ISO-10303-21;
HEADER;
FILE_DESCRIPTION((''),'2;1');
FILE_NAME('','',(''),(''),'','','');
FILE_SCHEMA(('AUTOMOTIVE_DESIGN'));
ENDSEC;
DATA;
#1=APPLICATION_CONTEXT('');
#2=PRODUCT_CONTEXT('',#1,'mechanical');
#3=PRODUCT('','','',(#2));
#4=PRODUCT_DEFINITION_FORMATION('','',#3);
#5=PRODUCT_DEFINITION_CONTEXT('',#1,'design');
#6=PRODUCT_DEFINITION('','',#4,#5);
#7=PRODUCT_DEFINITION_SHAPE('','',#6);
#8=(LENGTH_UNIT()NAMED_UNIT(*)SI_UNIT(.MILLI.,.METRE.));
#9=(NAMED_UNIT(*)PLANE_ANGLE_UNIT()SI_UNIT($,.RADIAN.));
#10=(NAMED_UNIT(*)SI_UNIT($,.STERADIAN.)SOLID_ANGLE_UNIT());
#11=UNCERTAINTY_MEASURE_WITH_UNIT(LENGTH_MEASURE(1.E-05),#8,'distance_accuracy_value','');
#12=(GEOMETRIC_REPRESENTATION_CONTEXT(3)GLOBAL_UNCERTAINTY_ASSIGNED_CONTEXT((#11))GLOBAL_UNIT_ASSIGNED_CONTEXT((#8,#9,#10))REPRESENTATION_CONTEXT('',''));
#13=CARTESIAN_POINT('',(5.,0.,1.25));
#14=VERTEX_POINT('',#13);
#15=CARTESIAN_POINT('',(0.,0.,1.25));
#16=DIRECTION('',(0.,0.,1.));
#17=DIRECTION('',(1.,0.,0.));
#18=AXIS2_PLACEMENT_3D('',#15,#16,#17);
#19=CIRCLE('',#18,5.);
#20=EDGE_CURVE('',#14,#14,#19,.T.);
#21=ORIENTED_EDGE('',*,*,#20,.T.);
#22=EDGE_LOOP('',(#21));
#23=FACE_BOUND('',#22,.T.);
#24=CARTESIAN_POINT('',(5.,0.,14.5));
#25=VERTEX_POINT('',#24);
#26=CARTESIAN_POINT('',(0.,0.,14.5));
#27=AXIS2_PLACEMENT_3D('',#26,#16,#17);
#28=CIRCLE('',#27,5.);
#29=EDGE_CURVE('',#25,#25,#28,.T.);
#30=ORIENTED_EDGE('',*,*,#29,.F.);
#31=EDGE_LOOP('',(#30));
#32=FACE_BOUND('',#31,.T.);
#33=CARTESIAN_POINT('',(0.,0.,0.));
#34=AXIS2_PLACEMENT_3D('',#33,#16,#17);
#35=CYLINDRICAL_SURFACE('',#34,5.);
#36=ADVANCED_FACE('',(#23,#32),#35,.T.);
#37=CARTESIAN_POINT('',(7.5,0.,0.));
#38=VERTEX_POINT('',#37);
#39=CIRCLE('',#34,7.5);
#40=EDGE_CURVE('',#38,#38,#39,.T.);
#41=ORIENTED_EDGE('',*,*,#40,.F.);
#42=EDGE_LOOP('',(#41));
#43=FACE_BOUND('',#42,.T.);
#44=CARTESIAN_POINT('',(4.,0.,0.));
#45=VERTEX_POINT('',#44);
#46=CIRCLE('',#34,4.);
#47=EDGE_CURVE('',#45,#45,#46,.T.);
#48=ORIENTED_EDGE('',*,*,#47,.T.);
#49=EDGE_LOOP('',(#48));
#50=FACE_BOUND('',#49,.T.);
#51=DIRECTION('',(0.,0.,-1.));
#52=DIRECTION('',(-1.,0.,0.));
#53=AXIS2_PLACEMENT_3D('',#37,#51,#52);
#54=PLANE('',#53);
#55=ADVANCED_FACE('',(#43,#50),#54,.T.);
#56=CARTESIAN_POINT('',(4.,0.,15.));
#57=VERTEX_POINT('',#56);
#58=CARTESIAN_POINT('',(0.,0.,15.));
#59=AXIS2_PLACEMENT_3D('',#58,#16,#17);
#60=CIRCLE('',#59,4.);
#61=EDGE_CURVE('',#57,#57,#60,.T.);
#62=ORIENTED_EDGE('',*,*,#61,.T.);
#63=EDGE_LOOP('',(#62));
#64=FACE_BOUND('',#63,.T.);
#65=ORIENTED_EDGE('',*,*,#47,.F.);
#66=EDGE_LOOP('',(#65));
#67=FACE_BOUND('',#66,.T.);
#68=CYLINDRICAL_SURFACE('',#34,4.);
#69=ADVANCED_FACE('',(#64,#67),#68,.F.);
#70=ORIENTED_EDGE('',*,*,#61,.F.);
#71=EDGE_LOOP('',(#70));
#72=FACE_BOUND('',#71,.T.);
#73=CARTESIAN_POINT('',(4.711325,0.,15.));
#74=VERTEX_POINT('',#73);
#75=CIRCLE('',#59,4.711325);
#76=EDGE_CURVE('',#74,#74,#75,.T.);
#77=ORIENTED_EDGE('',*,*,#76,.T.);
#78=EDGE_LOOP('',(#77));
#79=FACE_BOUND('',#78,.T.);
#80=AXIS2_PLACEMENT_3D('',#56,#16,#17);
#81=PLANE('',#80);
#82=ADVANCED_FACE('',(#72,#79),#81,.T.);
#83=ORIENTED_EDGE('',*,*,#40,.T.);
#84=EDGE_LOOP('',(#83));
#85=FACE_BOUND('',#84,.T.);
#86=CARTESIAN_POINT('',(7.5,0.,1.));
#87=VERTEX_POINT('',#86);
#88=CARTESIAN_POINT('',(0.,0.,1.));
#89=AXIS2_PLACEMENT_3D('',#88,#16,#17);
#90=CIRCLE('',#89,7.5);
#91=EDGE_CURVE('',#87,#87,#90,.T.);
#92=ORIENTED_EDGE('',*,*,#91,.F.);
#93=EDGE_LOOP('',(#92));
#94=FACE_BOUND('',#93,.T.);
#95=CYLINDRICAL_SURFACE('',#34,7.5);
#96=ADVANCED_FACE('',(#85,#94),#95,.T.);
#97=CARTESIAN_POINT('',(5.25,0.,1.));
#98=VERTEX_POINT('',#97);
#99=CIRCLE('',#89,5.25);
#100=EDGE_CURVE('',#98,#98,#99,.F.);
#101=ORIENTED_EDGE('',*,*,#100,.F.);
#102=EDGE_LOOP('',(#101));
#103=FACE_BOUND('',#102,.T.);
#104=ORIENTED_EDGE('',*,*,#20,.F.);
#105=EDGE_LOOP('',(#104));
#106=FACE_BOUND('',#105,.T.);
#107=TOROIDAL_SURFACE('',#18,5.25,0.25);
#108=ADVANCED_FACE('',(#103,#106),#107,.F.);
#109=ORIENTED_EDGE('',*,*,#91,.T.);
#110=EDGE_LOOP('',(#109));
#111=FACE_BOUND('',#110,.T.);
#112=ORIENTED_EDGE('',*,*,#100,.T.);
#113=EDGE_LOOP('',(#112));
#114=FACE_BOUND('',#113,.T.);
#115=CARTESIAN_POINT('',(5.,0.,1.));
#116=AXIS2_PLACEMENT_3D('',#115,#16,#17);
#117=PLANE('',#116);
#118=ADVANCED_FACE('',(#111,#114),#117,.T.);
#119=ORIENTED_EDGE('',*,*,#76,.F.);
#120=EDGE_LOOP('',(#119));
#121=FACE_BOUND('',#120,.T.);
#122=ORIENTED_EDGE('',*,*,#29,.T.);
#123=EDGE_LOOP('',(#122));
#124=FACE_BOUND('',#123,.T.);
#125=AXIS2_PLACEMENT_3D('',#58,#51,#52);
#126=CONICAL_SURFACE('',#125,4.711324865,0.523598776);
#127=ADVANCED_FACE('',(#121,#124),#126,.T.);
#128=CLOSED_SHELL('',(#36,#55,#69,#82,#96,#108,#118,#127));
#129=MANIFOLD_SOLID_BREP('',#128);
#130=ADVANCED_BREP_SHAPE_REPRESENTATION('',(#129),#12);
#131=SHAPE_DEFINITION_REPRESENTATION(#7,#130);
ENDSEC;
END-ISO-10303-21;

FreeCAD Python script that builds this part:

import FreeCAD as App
import Part
import Sketcher

V = App.Vector
Q = App.Units.Quantity


def edges_at(feature, points):
    """Names of the edges that pass closest to the given points."""
    edges = feature.Shape.Edges
    near = lambda p: min(range(len(edges)), key=lambda i: edges[i].distToShape(Part.Vertex(*p))[0])
    return sorted({f"Edge{near(p) + 1}" for p in points})


def add_polygon(sketch, points):
    """Adds a closed chain of lines whose ends are joined by coincident constraints."""
    first, n = sketch.GeometryCount, len(points)
    for a, b in zip(points, points[1:] + points[:1]):
        sketch.addGeometry(Part.LineSegment(App.Vector(*a, 0), App.Vector(*b, 0)), False)
    for i in range(n):
        sketch.addConstraint(Sketcher.Constraint("Coincident", first + i, 2, first + (i + 1) % n, 1))

doc = App.newDocument("Part")
body = doc.addObject("PartDesign::Body", "Body")

# Sketch on XZ plane
sketch1 = body.newObject("Sketcher::SketchObject", "Sketch")
sketch1.AttachmentSupport = (doc.getObject("XZ_Plane"), [""])
sketch1.MapMode = "FlatFace"
add_polygon(sketch1, [(5, 1), (7.5, 1), (7.5, 0), (4, 0), (4, 15), (4.711325, 15), (5, 14.5)])  # lines 0-6
sketch1.addConstraint(Sketcher.Constraint("Horizontal", 0))
sketch1.addConstraint(Sketcher.Constraint("Vertical", 1))
sketch1.addConstraint(Sketcher.Constraint("Horizontal", 2))
sketch1.addConstraint(Sketcher.Constraint("Vertical", 3))
sketch1.addConstraint(Sketcher.Constraint("Horizontal", 4))
sketch1.addConstraint(Sketcher.Constraint("Vertical", 6))
sketch1.addConstraint(Sketcher.Constraint("PointOnObject", 1, 2, -1))
sketch1.addConstraint(Sketcher.Constraint("DistanceY", 1, 2, 1, 1, Q("1 mm")))
sketch1.addConstraint(Sketcher.Constraint("DistanceY", 3, 1, 3, 2, Q("15 mm")))
sketch1.addConstraint(Sketcher.Constraint("Angle", 5, Q("-60 deg")))
sketch1.addConstraint(Sketcher.Constraint("DistanceX", 0, 1, 0, 2, Q("2.5 mm")))
sketch1.addConstraint(Sketcher.Constraint("DistanceX", 2, 2, 2, 1, Q("3.5 mm")))
sketch1.addConstraint(Sketcher.Constraint("DistanceY", 6, 2, 6, 1, Q("13.5 mm")))
sketch1.addConstraint(Sketcher.Constraint("DistanceX", -1, 1, 2, 2, Q("4 mm")))
revolution = body.newObject("PartDesign::Revolution", "Revolution")
revolution.Profile = sketch1
revolution.ReferenceAxis = (sketch1, ["V_Axis"])
revolution.Angle = 360
doc.recompute()

fillet = body.newObject("PartDesign::Fillet", "Fillet")
fillet.Base = (revolution, edges_at(revolution, [(-5, 0, 1)]))
fillet.Radius = 0.25

doc.recompute()
